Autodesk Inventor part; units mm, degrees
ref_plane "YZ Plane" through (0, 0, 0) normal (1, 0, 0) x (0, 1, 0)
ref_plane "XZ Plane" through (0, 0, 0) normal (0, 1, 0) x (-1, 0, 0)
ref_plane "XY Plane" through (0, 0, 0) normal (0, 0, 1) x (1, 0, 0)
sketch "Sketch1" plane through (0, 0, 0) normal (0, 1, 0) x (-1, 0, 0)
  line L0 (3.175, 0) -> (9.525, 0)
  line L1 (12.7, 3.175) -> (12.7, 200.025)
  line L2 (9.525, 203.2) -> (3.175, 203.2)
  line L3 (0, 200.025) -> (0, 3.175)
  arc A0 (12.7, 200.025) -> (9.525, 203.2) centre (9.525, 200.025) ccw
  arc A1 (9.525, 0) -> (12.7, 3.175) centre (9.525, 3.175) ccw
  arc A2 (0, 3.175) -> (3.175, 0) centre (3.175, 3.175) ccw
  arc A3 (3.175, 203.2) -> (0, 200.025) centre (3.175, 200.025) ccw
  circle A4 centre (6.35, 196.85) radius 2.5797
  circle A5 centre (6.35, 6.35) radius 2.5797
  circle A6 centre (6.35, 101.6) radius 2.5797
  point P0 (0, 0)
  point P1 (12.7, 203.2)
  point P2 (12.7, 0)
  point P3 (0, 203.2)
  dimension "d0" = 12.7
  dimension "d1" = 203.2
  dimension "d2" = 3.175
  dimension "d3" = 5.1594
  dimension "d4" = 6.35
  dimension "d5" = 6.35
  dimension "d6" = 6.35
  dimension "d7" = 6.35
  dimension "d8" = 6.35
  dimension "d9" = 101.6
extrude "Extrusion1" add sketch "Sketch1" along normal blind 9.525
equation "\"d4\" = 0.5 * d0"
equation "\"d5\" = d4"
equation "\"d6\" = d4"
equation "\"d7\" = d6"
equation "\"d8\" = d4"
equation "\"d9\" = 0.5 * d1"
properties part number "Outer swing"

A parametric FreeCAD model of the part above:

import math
import FreeCAD as App
import Part
import Sketcher
Q = App.Units.Quantity

doc = App.newDocument("Part")
body = doc.addObject("PartDesign::Body", "Body")

sketch1 = body.newObject("Sketcher::SketchObject", "Sketch")
sketch1.AttachmentSupport = (doc.getObject("XZ_Plane"), [""])
sketch1.MapMode = "FlatFace"
sketch1.addGeometry(Part.ArcOfCircle(Part.Circle(App.Vector(-3.2, 3.2, 0), App.Vector(0, 0, 1), 3.2), math.radians(-90), math.radians(0)), False)
sketch1.addGeometry(Part.LineSegment(App.Vector(-3.2, 0, 0), App.Vector(-9.5, 0, 0)), False)
sketch1.addGeometry(Part.ArcOfCircle(Part.Circle(App.Vector(-9.5, 3.2, 0), App.Vector(0, 0, 1), 3.2), math.radians(180), math.radians(270)), False)
sketch1.addGeometry(Part.LineSegment(App.Vector(-12.7, 3.2, 0), App.Vector(-12.7, 200, 0)), False)
sketch1.addGeometry(Part.ArcOfCircle(Part.Circle(App.Vector(-9.5, 200, 0), App.Vector(0, 0, 1), 3.2), math.radians(90), math.radians(180)), False)
sketch1.addGeometry(Part.LineSegment(App.Vector(-9.5, 203.2, 0), App.Vector(-3.2, 203.2, 0)), False)
sketch1.addGeometry(Part.ArcOfCircle(Part.Circle(App.Vector(-3.2, 200, 0), App.Vector(0, 0, 1), 3.2), math.radians(0), math.radians(90)), False)
sketch1.addGeometry(Part.LineSegment(App.Vector(0, 200, 0), App.Vector(0, 3.2, 0)), False)
sketch1.addGeometry(Part.Circle(App.Vector(-6.3, 6.3, 0), App.Vector(0, 0, 1), 2.6), False)
sketch1.addGeometry(Part.Circle(App.Vector(-6.3, 101.6, 0), App.Vector(0, 0, 1), 2.6), False)
sketch1.addGeometry(Part.Circle(App.Vector(-6.3, 196.8, 0), App.Vector(0, 0, 1), 2.6), False)
sketch1.addConstraint(Sketcher.Constraint("Tangent", 0, 1, 1, 1))
sketch1.addConstraint(Sketcher.Constraint("Tangent", 1, 2, 2, 2))
sketch1.addConstraint(Sketcher.Constraint("Tangent", 2, 1, 3, 1))
sketch1.addConstraint(Sketcher.Constraint("Tangent", 3, 2, 4, 2))
sketch1.addConstraint(Sketcher.Constraint("Tangent", 4, 1, 5, 1))
sketch1.addConstraint(Sketcher.Constraint("Tangent", 5, 2, 6, 2))
sketch1.addConstraint(Sketcher.Constraint("Tangent", 6, 1, 7, 1))
sketch1.addConstraint(Sketcher.Constraint("Tangent", 7, 2, 0, 2))
sketch1.addConstraint(Sketcher.Constraint("Horizontal", 1))
sketch1.addConstraint(Sketcher.Constraint("Vertical", 3))
sketch1.addConstraint(Sketcher.Constraint("Horizontal", 5))
sketch1.addConstraint(Sketcher.Constraint("Vertical", 7))
sketch1.addConstraint(Sketcher.Constraint("Equal", 0, 2))
sketch1.addConstraint(Sketcher.Constraint("Equal", 2, 4))
sketch1.addConstraint(Sketcher.Constraint("Equal", 4, 6))
sketch1.addConstraint(Sketcher.Constraint("Equal", 8, 9))
sketch1.addConstraint(Sketcher.Constraint("Equal", 9, 10))
sketch1.addConstraint(Sketcher.Constraint("PointOnObject", 0, 1, -1))
sketch1.addConstraint(Sketcher.Constraint("PointOnObject", 6, 1, -2))
sketch1.addConstraint(Sketcher.Constraint("Vertical", 8, 3, 9, 3))
sketch1.addConstraint(Sketcher.Constraint("Vertical", 9, 3, 10, 3))
sketch1.addConstraint(Sketcher.Constraint("Diameter", 8, Q("0.203126 in")))
sketch1.addConstraint(Sketcher.Constraint("DistanceY", -1, 1, 9, 3, Q("4 in")))
sketch1.addConstraint(Sketcher.Constraint("DistanceY", -1, 1, 4, 1, Q("8 in")))
sketch1.addConstraint(Sketcher.Constraint("Radius", 0, Q("0.125 in")))
sketch1.addConstraint(Sketcher.Constraint("DistanceX", 1, 2, 1, 1, Q("0.25 in")))
sketch1.addConstraint(Sketcher.Constraint("DistanceX", 8, 3, -1, 1, Q("0.25 in")))
sketch1.addConstraint(Sketcher.Constraint("DistanceY", -1, 1, 8, 3, Q("0.25 in")))
sketch1.addConstraint(Sketcher.Constraint("DistanceY", 10, 3, 4, 1, Q("0.25 in")))
pad1 = body.newObject("PartDesign::Pad", "Pad")
pad1.Profile = sketch1
pad1.Length = Q("0.375 in")
pad1.Reversed = True

doc.recompute()
